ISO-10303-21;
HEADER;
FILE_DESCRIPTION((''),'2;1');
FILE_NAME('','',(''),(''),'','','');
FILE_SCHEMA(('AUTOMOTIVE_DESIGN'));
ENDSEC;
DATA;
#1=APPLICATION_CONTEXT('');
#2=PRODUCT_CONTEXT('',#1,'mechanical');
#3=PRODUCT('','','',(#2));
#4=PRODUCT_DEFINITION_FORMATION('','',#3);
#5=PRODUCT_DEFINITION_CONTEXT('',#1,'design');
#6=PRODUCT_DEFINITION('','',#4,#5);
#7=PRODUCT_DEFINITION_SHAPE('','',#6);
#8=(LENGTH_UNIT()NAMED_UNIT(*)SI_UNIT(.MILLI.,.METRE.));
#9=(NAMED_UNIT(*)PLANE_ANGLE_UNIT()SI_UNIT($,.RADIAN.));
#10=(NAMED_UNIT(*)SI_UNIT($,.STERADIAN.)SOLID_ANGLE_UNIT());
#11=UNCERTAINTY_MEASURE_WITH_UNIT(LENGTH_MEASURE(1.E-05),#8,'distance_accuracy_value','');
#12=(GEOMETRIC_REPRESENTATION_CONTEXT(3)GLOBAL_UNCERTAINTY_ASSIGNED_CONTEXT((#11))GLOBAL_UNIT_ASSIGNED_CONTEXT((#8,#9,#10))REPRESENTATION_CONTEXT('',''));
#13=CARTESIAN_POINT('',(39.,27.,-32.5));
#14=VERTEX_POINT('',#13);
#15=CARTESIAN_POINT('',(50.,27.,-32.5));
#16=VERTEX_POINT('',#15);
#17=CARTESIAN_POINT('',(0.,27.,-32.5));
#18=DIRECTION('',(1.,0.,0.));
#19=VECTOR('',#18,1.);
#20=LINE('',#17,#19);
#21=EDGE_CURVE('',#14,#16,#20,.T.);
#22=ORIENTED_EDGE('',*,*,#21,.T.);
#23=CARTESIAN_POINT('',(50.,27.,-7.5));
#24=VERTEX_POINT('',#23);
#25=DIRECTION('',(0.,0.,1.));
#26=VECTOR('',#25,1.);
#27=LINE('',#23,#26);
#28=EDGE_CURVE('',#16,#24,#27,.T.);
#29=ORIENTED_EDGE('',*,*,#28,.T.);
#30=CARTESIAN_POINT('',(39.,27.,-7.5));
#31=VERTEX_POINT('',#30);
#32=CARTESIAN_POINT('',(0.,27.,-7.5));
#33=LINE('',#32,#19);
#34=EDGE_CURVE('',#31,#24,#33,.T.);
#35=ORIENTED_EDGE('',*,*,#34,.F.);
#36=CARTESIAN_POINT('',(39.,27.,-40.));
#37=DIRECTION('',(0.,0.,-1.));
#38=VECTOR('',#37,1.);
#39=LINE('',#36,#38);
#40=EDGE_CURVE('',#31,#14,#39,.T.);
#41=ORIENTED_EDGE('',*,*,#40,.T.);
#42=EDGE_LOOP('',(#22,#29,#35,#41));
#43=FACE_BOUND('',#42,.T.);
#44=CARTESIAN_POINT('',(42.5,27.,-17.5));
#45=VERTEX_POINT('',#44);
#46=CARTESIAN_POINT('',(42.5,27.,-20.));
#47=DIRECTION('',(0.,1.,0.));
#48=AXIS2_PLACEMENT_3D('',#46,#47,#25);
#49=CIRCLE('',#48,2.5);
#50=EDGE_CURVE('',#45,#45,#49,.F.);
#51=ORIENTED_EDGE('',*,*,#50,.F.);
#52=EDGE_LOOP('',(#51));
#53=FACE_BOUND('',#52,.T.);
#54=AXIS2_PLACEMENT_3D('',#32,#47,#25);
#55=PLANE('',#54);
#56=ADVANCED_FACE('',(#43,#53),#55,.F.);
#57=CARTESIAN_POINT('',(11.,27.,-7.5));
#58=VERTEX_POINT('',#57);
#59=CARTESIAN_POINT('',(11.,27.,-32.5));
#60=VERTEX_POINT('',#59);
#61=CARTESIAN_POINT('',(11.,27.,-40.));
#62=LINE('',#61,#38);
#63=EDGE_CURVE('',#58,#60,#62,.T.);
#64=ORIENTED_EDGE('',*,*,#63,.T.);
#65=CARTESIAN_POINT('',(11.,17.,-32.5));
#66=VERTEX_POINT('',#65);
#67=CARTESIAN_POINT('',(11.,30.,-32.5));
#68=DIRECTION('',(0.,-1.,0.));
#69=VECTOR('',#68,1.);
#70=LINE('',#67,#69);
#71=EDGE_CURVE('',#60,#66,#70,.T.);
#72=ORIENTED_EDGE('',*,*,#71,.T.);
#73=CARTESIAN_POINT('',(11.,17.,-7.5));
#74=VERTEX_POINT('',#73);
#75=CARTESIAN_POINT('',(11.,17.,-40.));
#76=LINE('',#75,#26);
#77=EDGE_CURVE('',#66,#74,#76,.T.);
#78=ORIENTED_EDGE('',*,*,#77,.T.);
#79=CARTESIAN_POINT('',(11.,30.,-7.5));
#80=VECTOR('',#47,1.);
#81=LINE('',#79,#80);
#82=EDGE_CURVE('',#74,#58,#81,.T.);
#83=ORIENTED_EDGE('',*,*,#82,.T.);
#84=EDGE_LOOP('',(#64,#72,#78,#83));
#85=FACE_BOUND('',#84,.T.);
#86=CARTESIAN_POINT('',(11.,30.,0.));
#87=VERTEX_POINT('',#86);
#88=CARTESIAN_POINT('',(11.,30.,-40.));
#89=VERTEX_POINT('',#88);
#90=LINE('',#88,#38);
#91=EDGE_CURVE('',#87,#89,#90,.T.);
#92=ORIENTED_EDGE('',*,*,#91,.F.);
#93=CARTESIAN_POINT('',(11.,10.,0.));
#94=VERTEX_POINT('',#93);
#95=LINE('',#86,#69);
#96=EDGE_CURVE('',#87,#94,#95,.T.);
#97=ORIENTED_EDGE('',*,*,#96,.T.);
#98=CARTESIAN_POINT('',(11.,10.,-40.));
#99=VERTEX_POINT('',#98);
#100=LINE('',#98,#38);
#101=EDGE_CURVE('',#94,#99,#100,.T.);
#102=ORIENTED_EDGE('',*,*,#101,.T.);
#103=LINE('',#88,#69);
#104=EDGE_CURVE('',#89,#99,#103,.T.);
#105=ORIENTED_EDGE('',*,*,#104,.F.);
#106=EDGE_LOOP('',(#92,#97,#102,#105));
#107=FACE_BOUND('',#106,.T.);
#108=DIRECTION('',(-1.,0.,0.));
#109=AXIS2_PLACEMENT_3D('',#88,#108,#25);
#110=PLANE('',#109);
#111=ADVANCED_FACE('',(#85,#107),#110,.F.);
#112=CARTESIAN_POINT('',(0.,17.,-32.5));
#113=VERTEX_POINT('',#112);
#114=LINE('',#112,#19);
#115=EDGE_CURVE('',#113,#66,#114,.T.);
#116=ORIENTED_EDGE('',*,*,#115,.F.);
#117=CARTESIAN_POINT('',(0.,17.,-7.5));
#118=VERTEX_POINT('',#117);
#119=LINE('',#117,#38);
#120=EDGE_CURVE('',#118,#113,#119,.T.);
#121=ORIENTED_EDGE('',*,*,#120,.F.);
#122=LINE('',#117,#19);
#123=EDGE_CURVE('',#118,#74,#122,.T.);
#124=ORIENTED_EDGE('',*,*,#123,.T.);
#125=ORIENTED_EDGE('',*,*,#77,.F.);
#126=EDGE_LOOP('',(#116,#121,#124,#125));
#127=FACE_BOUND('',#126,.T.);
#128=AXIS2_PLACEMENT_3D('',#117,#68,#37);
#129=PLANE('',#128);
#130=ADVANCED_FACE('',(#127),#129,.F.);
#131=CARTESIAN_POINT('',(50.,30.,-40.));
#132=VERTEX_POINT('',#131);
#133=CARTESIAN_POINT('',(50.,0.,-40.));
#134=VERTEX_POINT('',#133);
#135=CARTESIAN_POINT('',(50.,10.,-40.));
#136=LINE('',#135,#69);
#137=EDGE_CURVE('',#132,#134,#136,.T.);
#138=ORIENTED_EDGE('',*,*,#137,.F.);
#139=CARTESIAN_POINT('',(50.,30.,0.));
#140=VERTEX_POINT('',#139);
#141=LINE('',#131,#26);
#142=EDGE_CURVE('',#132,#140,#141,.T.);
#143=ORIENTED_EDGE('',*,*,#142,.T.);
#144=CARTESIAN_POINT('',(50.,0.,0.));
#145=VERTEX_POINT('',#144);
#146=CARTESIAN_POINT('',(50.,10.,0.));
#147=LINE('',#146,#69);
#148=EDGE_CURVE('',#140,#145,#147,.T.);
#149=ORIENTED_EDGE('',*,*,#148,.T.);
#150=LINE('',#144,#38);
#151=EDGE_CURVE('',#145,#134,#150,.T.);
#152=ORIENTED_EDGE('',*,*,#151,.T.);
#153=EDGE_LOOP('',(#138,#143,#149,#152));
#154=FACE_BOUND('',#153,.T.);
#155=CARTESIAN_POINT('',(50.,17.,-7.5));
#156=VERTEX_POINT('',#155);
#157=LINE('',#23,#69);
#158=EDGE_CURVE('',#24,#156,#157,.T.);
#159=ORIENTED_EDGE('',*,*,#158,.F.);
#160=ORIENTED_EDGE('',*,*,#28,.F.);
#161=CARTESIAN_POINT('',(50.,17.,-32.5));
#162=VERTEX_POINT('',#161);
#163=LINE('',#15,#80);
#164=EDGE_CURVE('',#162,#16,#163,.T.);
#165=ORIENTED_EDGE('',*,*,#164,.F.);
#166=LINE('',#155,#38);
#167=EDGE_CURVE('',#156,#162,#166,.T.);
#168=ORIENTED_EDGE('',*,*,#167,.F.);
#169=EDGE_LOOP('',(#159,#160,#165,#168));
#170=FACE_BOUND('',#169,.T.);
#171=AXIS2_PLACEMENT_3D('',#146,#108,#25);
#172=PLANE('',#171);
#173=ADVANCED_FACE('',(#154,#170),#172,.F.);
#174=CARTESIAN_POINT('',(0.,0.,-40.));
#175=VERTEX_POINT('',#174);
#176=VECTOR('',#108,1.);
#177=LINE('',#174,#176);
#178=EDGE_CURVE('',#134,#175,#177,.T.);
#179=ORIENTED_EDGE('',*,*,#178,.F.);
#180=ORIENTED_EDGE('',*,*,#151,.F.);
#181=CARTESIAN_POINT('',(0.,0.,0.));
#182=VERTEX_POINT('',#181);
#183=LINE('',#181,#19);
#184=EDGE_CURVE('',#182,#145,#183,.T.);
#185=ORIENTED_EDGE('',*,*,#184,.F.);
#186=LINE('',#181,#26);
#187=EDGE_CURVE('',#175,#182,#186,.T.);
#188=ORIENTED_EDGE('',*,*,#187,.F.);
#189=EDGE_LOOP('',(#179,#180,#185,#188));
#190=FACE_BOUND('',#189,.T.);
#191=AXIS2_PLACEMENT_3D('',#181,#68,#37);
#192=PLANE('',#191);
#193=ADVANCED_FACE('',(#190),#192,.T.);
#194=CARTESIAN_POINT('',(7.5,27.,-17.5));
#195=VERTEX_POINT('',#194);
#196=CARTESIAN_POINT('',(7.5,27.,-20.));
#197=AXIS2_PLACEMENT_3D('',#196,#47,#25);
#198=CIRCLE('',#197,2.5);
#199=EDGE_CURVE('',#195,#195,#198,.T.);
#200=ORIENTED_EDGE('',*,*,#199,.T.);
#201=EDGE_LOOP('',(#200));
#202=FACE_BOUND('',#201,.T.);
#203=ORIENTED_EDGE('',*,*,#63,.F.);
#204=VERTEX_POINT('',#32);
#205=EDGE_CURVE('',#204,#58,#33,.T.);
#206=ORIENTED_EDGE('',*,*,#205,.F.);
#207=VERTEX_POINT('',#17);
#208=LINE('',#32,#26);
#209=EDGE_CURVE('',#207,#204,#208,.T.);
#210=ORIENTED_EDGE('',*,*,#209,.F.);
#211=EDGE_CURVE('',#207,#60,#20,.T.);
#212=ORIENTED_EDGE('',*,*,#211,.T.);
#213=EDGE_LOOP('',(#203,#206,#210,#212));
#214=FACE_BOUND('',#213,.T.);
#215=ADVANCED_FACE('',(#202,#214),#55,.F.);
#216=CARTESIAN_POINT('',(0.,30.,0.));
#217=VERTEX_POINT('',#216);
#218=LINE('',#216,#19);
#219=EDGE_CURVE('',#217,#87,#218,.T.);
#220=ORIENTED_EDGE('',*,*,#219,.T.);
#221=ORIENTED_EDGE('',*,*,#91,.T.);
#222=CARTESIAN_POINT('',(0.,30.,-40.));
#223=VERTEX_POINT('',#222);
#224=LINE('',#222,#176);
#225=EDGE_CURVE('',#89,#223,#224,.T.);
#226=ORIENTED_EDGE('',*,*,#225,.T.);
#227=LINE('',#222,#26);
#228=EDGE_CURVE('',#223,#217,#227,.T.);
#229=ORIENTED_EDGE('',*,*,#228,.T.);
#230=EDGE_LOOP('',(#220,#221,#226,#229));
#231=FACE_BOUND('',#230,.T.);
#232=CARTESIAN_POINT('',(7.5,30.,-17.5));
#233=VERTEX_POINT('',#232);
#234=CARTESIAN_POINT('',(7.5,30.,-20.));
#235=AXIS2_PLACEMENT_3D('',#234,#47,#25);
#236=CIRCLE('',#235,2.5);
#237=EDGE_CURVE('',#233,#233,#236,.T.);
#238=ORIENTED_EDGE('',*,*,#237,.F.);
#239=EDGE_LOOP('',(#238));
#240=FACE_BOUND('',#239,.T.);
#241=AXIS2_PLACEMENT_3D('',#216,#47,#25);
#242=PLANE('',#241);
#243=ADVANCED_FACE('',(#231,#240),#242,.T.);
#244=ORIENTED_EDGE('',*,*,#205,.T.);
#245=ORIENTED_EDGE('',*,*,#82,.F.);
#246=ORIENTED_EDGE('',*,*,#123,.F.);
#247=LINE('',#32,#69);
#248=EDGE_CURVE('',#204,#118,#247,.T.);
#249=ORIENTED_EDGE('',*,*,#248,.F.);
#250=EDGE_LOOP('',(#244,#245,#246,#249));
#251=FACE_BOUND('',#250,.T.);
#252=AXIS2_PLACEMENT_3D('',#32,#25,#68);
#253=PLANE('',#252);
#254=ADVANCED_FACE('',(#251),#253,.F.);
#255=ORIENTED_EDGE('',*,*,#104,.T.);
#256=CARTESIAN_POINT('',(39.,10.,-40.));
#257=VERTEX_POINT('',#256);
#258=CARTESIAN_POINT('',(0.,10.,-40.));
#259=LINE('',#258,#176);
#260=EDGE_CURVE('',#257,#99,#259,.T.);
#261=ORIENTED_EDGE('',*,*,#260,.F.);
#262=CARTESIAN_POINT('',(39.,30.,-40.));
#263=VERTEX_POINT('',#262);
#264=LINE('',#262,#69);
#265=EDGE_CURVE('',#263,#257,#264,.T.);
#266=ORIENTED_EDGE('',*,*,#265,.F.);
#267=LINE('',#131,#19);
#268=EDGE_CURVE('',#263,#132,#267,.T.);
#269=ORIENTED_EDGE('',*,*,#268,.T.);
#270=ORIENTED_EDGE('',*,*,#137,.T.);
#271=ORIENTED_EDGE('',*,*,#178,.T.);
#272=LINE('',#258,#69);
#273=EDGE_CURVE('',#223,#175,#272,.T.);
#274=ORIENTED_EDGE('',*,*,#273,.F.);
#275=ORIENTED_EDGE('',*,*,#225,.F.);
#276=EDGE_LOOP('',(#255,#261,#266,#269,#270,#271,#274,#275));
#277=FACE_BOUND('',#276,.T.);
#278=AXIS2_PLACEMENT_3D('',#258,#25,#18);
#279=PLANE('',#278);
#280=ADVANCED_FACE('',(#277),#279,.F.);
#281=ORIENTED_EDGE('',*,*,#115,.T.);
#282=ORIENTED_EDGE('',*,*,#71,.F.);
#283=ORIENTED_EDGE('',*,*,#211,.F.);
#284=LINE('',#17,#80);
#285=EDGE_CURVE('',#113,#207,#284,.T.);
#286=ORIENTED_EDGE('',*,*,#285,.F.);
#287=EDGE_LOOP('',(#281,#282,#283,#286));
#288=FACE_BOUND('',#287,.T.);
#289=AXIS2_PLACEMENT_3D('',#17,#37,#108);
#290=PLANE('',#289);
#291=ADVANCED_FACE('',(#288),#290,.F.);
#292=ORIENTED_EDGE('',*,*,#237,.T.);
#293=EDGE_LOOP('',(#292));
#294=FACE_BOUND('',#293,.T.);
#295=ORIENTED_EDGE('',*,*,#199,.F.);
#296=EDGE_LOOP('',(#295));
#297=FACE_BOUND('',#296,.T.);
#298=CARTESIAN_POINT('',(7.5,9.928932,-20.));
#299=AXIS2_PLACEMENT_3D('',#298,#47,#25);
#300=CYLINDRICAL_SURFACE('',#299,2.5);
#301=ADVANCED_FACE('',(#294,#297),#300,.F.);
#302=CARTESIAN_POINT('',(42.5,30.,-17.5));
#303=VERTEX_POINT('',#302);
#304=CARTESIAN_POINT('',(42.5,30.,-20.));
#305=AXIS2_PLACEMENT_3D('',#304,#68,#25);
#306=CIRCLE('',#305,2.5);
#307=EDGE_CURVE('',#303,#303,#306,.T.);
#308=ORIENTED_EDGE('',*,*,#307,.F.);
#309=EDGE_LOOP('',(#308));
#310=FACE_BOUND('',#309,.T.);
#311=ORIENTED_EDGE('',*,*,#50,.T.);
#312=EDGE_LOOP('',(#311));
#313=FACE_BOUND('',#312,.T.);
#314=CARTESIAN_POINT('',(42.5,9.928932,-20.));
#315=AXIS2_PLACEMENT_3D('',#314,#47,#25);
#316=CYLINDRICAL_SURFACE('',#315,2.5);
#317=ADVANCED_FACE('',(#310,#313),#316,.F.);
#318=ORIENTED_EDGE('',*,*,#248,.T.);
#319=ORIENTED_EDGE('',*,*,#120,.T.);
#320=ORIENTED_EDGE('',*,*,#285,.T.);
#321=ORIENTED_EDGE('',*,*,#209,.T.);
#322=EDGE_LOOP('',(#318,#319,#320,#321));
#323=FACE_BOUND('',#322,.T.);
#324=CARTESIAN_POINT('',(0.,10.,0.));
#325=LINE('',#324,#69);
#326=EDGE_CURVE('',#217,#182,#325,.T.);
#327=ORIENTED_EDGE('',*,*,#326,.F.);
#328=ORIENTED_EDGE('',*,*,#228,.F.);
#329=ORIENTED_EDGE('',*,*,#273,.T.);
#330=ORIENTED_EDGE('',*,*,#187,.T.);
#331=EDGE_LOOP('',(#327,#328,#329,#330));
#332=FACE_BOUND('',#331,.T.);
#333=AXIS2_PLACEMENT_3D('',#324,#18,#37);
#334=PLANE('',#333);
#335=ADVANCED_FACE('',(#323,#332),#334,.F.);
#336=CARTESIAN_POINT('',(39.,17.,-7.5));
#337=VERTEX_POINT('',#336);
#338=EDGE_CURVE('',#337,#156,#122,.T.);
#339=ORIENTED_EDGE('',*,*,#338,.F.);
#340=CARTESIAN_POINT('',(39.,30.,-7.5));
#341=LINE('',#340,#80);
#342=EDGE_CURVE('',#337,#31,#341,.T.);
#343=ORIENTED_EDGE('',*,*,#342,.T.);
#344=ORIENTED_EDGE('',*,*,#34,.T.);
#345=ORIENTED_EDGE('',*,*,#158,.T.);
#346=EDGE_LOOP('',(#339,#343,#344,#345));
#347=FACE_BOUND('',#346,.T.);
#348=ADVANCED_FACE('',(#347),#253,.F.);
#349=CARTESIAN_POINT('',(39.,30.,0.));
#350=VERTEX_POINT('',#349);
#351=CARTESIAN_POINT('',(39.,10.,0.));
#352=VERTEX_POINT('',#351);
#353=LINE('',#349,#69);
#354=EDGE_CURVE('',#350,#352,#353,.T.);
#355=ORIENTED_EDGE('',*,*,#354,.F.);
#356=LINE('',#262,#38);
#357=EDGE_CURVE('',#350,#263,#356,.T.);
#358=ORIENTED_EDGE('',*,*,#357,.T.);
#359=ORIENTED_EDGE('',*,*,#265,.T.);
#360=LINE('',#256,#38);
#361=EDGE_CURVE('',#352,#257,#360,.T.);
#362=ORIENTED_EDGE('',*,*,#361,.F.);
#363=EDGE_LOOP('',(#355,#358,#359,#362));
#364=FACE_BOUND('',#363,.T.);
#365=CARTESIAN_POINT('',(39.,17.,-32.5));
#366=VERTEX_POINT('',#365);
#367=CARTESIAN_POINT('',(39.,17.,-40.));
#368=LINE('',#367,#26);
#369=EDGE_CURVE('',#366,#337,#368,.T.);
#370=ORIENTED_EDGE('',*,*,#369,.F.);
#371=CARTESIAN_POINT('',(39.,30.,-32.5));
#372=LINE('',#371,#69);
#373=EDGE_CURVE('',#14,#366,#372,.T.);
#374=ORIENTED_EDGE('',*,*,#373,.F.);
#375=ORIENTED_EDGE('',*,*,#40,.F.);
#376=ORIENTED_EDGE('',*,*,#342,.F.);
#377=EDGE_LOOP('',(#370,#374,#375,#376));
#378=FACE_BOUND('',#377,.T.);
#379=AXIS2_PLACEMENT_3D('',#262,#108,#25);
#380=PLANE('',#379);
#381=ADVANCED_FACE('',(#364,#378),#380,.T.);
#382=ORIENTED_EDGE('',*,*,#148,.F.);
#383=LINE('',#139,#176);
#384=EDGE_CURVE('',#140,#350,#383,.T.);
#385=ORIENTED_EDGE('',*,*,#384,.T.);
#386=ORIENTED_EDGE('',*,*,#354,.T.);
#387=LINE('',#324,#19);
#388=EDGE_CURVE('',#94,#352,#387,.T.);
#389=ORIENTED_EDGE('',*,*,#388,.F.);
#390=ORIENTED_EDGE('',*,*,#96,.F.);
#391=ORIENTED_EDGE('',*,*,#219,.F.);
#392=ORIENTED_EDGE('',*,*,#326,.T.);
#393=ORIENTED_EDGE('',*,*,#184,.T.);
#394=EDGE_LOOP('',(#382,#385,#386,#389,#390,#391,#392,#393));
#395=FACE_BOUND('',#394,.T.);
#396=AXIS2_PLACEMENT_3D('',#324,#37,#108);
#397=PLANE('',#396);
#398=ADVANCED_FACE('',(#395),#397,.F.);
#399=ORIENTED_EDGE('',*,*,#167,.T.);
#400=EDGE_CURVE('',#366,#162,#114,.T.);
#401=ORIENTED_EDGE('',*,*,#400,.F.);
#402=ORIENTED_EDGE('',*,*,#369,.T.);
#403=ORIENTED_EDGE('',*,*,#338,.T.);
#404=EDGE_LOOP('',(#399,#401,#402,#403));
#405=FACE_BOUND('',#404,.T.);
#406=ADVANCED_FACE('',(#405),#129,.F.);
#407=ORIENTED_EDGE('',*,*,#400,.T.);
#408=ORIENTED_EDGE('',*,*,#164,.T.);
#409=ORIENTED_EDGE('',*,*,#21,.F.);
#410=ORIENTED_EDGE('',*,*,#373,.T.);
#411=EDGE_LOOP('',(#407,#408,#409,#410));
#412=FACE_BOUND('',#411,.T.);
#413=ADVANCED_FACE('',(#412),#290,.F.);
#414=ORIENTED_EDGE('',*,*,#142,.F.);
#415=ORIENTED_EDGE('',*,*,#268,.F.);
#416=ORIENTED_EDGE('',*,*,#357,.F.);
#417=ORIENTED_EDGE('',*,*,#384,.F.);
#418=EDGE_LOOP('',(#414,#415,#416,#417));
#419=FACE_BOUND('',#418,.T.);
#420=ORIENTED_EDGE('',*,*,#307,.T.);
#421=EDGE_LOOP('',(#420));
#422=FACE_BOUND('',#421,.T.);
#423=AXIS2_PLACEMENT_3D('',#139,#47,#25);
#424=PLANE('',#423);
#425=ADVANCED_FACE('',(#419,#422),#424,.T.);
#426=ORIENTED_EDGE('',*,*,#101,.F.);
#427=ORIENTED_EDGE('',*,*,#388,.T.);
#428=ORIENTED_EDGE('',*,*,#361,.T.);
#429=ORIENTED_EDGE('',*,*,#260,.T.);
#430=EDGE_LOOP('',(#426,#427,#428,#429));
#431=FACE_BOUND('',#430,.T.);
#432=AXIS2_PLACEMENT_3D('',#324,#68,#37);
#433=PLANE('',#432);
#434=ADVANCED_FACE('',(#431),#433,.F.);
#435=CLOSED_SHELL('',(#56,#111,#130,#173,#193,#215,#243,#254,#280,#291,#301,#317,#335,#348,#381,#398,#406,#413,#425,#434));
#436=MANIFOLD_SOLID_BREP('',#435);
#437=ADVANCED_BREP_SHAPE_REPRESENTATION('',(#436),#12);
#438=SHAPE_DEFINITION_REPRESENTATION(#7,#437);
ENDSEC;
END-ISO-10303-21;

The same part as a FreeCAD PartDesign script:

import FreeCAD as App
import Part
import Sketcher

V = App.Vector
Q = App.Units.Quantity

doc = App.newDocument("Part")
body = doc.addObject("PartDesign::Body", "Body")

# Sketch on XZ plane
sketch1 = body.newObject("Sketcher::SketchObject", "Sketch")
sketch1.AttachmentSupport = (doc.getObject("XZ_Plane"), [""])
sketch1.MapMode = "FlatFace"
sketch1.addGeometry(Part.LineSegment(V(0, -40, 0), V(0, 0, 0)), False)
sketch1.addGeometry(Part.LineSegment(V(0, 0, 0), V(50, 0, 0)), False)
sketch1.addGeometry(Part.LineSegment(V(50, 0, 0), V(50, -40, 0)), False)
sketch1.addGeometry(Part.LineSegment(V(50, -40, 0), V(0, -40, 0)), False)
sketch1.addConstraint(Sketcher.Constraint("Coincident", 0, 2, 1, 1))
sketch1.addConstraint(Sketcher.Constraint("Coincident", 1, 2, 2, 1))
sketch1.addConstraint(Sketcher.Constraint("Coincident", 2, 2, 3, 1))
sketch1.addConstraint(Sketcher.Constraint("Coincident", 3, 2, 0, 1))
sketch1.addConstraint(Sketcher.Constraint("Vertical", 0))
sketch1.addConstraint(Sketcher.Constraint("Horizontal", 1))
sketch1.addConstraint(Sketcher.Constraint("Vertical", 2))
sketch1.addConstraint(Sketcher.Constraint("Horizontal", 3))
sketch1.addConstraint(Sketcher.Constraint("Coincident", 0, 2, -1, 1))
sketch1.addConstraint(Sketcher.Constraint("DistanceX", 1, 1, 1, 2, Q("50 mm")))
sketch1.addConstraint(Sketcher.Constraint("DistanceY", 0, 1, 0, 2, Q("40 mm")))
pad1 = body.newObject("PartDesign::Pad", "Pad")
pad1.Profile = sketch1
pad1.Length = 10
pad1.Reversed = True

# Sketch on XZ plane
sketch2 = body.newObject("Sketcher::SketchObject", "Sketch001")
sketch2.AttachmentSupport = (doc.getObject("XZ_Plane"), [""])
sketch2.MapMode = "FlatFace"
sketch2.AttachmentOffset = App.Placement(V(0, 0, -10), App.Rotation())
sketch2.addGeometry(Part.LineSegment(V(0, -40, 0), V(0, 0, 0)), False)
sketch2.addGeometry(Part.LineSegment(V(0, 0, 0), V(11, 0, 0)), False)
sketch2.addGeometry(Part.LineSegment(V(11, 0, 0), V(11, -40, 0)), False)
sketch2.addGeometry(Part.LineSegment(V(11, -40, 0), V(0, -40, 0)), False)
sketch2.addConstraint(Sketcher.Constraint("Coincident", 0, 2, 1, 1))
sketch2.addConstraint(Sketcher.Constraint("Coincident", 1, 2, 2, 1))
sketch2.addConstraint(Sketcher.Constraint("Coincident", 2, 2, 3, 1))
sketch2.addConstraint(Sketcher.Constraint("Coincident", 3, 2, 0, 1))
sketch2.addConstraint(Sketcher.Constraint("Vertical", 0))
sketch2.addConstraint(Sketcher.Constraint("Horizontal", 1))
sketch2.addConstraint(Sketcher.Constraint("Vertical", 2))
sketch2.addConstraint(Sketcher.Constraint("Horizontal", 3))
sketch2.addConstraint(Sketcher.Constraint("Coincident", 0, 2, -1, 1))
sketch2.addConstraint(Sketcher.Constraint("DistanceX", 1, 1, 1, 2, Q("11 mm")))
sketch2.addConstraint(Sketcher.Constraint("DistanceY", 0, 1, 0, 2, Q("40 mm")))
pad2 = body.newObject("PartDesign::Pad", "Pad001")
pad2.Profile = sketch2
pad2.Length = 20
pad2.Reversed = True
doc.recompute()

datumplane = body.newObject("PartDesign::Plane", "DatumPlane")
datumplane.AttachmentSupport = (doc.getObject("YZ_Plane"), [""])
datumplane.MapMode = "FlatFace"
datumplane.AttachmentOffset = App.Placement(V(0, 0, 25), App.Rotation())
mirrored = body.newObject("PartDesign::Mirrored", "Mirrored")
mirrored.Originals = [pad2]
mirrored.MirrorPlane = (datumplane, [""])
body.Tip = mirrored

# Sketch on YZ plane
sketch3 = body.newObject("Sketcher::SketchObject", "Sketch002")
sketch3.AttachmentSupport = (doc.getObject("YZ_Plane"), [""])
sketch3.MapMode = "FlatFace"
sketch3.AttachmentOffset = App.Placement(V(0, 0, 50), App.Rotation())
sketch3.addGeometry(Part.LineSegment(V(27, -7.5, 0), V(17, -7.5, 0)), False)
sketch3.addGeometry(Part.LineSegment(V(17, -7.5, 0), V(17, -32.5, 0)), False)
sketch3.addGeometry(Part.LineSegment(V(17, -32.5, 0), V(27, -32.5, 0)), False)
sketch3.addGeometry(Part.LineSegment(V(27, -32.5, 0), V(27, -7.5, 0)), False)
sketch3.addConstraint(Sketcher.Constraint("Coincident", 0, 2, 1, 1))
sketch3.addConstraint(Sketcher.Constraint("Coincident", 1, 2, 2, 1))
sketch3.addConstraint(Sketcher.Constraint("Coincident", 2, 2, 3, 1))
sketch3.addConstraint(Sketcher.Constraint("Coincident", 3, 2, 0, 1))
sketch3.addConstraint(Sketcher.Constraint("Horizontal", 0))
sketch3.addConstraint(Sketcher.Constraint("Vertical", 1))
sketch3.addConstraint(Sketcher.Constraint("Horizontal", 2))
sketch3.addConstraint(Sketcher.Constraint("Vertical", 3))
sketch3.addConstraint(Sketcher.Constraint("DistanceX", 0, 2, 0, 1, Q("10 mm")))
sketch3.addConstraint(Sketcher.Constraint("DistanceY", 1, 2, 1, 1, Q("25 mm")))
sketch3.addConstraint(Sketcher.Constraint("DistanceX", -1, 1, 0, 2, Q("17 mm")))
sketch3.addConstraint(Sketcher.Constraint("DistanceY", 0, 2, -1, 1, Q("7.5 mm")))
pocket1 = body.newObject("PartDesign::Pocket", "Pocket")
pocket1.Profile = sketch3
pocket1.Type = "ThroughAll"

# Sketch on XZ plane
sketch4 = body.newObject("Sketcher::SketchObject", "Sketch003")
sketch4.AttachmentSupport = (doc.getObject("XZ_Plane"), [""])
sketch4.MapMode = "FlatFace"
sketch4.AttachmentOffset = App.Placement(V(0, 0, -30), App.Rotation())
sketch4.addGeometry(Part.Circle(V(7.5, -20, 0), V(0, 0, 1), 2.5), False)
sketch4.addConstraint(Sketcher.Constraint("Diameter", 0, Q("5 mm")))
sketch4.addConstraint(Sketcher.Constraint("DistanceY", 0, 3, -1, 1, Q("20 mm")))
sketch4.addConstraint(Sketcher.Constraint("DistanceX", -1, 1, 0, 3, Q("7.5 mm")))
pocket2 = body.newObject("PartDesign::Pocket", "Pocket001")
pocket2.Profile = sketch4
pocket2.Length = 13
pocket2.Reversed = True
doc.recompute()

datumplane2 = body.newObject("PartDesign::Plane", "DatumPlane001")
datumplane2.AttachmentSupport = (doc.getObject("YZ_Plane"), [""])
datumplane2.MapMode = "FlatFace"
datumplane2.AttachmentOffset = App.Placement(V(0, 0, 25), App.Rotation())
mirrored2 = body.newObject("PartDesign::Mirrored", "Mirrored001")
mirrored2.Originals = [pocket2]
mirrored2.MirrorPlane = (datumplane2, [""])
body.Tip = mirrored2

doc.recompute()
